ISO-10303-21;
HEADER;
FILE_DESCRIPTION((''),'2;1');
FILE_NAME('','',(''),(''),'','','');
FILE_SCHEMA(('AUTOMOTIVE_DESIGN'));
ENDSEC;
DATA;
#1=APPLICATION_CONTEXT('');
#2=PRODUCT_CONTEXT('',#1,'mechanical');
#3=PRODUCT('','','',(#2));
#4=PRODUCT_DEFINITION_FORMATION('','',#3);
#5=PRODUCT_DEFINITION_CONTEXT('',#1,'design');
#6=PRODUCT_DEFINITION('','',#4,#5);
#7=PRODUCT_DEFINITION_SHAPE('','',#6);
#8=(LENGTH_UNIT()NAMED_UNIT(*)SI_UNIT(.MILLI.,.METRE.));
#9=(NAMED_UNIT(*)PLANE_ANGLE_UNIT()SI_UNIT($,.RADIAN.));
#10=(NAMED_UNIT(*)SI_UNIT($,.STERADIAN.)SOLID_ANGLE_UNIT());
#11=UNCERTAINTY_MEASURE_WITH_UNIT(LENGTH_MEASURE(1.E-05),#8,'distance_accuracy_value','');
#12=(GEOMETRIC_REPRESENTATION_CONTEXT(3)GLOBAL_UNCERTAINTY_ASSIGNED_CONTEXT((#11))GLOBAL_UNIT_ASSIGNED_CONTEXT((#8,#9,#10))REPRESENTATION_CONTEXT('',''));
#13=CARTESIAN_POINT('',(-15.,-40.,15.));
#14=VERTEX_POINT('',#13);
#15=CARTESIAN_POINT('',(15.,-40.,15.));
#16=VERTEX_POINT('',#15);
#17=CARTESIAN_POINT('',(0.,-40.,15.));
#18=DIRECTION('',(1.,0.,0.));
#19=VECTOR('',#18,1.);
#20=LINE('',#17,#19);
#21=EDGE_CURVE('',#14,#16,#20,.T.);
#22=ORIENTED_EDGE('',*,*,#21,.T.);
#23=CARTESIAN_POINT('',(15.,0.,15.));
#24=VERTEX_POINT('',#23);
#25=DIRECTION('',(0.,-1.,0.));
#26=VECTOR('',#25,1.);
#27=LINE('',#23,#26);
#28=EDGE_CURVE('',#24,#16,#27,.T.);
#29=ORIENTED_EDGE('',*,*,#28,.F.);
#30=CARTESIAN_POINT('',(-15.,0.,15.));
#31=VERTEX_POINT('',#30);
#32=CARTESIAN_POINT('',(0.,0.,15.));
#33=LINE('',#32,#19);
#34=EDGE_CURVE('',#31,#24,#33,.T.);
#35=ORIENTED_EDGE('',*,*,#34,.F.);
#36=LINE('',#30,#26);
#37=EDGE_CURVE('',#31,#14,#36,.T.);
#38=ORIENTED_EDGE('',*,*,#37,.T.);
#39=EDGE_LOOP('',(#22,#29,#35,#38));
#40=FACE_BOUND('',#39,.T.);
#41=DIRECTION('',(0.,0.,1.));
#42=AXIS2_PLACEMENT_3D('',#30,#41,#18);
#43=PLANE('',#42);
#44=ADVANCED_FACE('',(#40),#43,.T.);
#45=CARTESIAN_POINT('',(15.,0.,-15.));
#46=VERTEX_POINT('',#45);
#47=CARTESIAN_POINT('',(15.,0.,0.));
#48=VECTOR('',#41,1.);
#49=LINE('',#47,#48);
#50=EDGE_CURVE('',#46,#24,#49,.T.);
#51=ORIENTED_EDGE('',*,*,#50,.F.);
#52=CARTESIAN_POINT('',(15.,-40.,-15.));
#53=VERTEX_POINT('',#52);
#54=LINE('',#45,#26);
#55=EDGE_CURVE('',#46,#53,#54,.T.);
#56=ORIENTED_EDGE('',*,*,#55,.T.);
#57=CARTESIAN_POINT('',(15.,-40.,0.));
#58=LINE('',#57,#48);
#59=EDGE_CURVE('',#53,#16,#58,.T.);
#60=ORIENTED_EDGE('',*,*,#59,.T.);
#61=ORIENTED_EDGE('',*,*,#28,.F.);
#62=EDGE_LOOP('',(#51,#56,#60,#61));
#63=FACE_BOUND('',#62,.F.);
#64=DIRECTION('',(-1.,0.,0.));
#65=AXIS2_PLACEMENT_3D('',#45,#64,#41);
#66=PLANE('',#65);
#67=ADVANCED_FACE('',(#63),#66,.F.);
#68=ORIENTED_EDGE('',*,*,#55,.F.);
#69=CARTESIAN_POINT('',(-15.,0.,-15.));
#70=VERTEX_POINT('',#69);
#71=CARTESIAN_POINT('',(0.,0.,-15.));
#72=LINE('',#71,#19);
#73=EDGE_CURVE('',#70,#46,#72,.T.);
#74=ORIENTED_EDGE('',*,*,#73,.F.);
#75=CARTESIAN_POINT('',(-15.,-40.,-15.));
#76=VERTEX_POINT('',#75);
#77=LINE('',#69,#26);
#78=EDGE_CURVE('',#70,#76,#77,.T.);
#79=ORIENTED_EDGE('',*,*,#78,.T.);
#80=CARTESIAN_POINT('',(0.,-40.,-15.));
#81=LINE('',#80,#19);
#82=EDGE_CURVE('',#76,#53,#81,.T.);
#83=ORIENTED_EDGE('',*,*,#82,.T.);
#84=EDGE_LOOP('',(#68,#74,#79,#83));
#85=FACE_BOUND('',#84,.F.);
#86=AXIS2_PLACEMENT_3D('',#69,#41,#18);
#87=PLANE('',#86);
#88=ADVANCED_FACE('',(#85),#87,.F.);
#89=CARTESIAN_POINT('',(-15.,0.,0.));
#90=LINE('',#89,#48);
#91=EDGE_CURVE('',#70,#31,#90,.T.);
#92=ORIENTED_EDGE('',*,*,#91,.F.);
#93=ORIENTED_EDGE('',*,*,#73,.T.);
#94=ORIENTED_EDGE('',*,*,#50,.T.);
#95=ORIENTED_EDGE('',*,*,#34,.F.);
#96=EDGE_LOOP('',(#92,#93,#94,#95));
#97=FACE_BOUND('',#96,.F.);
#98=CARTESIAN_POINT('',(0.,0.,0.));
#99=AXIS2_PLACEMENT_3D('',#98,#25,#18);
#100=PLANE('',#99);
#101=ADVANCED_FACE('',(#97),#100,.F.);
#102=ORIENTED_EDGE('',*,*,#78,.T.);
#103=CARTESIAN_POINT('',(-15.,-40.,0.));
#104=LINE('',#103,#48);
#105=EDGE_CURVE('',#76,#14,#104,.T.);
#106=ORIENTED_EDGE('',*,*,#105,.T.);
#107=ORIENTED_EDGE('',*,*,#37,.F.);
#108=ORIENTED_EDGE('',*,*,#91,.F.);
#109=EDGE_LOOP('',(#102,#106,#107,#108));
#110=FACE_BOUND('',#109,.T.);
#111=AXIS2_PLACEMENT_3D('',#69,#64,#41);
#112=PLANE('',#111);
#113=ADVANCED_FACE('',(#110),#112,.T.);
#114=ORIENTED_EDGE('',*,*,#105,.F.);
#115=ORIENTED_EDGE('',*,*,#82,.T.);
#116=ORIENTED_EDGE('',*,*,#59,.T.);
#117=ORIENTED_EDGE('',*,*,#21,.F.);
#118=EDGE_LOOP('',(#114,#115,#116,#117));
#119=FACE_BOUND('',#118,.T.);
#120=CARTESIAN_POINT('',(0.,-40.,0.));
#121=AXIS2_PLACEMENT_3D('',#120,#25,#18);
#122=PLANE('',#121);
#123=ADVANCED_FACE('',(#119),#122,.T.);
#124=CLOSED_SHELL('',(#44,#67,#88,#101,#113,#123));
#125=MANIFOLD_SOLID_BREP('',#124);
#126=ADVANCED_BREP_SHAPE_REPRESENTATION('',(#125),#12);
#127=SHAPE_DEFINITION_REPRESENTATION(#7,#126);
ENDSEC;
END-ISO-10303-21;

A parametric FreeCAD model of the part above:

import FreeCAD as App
import Part
import Sketcher

doc = App.newDocument("Part")
params = doc.addObject("Spreadsheet::Sheet", "Params")
for row, (alias, value) in enumerate([
    ("sketch1_width", "30 mm"),
    ("pad1_length", "40 mm"),
], start=1):
    params.set(f"A{row}", alias)
    params.set(f"B{row}", "=" + value)
    params.setAlias(f"B{row}", alias)

body = doc.addObject("PartDesign::Body", "Body")

# Sketch on XZ plane
sketch1 = body.newObject("Sketcher::SketchObject", "Sketch")
sketch1.AttachmentSupport = (doc.getObject("XZ_Plane"), [""])
sketch1.MapMode = "FlatFace"
sketch1.addGeometry([
    Part.LineSegment(App.Vector(-15, 15, 0), App.Vector(-15, -15, 0)),
    Part.LineSegment(App.Vector(-15, -15, 0), App.Vector(15, -15, 0)),
    Part.LineSegment(App.Vector(15, -15, 0), App.Vector(15, 15, 0)),
    Part.LineSegment(App.Vector(15, 15, 0), App.Vector(-15, 15, 0)),
], False)
sketch1.addConstraint([
    Sketcher.Constraint("Coincident", 0, 2, 1, 1),
    Sketcher.Constraint("Coincident", 1, 2, 2, 1),
    Sketcher.Constraint("Coincident", 2, 2, 3, 1),
    Sketcher.Constraint("Coincident", 3, 2, 0, 1),
    Sketcher.Constraint("Vertical", 0),
    Sketcher.Constraint("Horizontal", 1),
    Sketcher.Constraint("Vertical", 2),
    Sketcher.Constraint("Horizontal", 3),
    Sketcher.Constraint("Symmetric", 0, 2, 2, 2, -1, 1),
    Sketcher.Constraint("Equal", 3, 0),
    Sketcher.Constraint("DistanceX", 1, 1, 1, 2, 30.0),
])
sketch1.setExpression("Constraints[10]", "Params.sketch1_width")
pad1 = body.newObject("PartDesign::Pad", "Pad")
pad1.Profile = sketch1
pad1.setExpression("Length", "Params.pad1_length")

doc.recompute()
